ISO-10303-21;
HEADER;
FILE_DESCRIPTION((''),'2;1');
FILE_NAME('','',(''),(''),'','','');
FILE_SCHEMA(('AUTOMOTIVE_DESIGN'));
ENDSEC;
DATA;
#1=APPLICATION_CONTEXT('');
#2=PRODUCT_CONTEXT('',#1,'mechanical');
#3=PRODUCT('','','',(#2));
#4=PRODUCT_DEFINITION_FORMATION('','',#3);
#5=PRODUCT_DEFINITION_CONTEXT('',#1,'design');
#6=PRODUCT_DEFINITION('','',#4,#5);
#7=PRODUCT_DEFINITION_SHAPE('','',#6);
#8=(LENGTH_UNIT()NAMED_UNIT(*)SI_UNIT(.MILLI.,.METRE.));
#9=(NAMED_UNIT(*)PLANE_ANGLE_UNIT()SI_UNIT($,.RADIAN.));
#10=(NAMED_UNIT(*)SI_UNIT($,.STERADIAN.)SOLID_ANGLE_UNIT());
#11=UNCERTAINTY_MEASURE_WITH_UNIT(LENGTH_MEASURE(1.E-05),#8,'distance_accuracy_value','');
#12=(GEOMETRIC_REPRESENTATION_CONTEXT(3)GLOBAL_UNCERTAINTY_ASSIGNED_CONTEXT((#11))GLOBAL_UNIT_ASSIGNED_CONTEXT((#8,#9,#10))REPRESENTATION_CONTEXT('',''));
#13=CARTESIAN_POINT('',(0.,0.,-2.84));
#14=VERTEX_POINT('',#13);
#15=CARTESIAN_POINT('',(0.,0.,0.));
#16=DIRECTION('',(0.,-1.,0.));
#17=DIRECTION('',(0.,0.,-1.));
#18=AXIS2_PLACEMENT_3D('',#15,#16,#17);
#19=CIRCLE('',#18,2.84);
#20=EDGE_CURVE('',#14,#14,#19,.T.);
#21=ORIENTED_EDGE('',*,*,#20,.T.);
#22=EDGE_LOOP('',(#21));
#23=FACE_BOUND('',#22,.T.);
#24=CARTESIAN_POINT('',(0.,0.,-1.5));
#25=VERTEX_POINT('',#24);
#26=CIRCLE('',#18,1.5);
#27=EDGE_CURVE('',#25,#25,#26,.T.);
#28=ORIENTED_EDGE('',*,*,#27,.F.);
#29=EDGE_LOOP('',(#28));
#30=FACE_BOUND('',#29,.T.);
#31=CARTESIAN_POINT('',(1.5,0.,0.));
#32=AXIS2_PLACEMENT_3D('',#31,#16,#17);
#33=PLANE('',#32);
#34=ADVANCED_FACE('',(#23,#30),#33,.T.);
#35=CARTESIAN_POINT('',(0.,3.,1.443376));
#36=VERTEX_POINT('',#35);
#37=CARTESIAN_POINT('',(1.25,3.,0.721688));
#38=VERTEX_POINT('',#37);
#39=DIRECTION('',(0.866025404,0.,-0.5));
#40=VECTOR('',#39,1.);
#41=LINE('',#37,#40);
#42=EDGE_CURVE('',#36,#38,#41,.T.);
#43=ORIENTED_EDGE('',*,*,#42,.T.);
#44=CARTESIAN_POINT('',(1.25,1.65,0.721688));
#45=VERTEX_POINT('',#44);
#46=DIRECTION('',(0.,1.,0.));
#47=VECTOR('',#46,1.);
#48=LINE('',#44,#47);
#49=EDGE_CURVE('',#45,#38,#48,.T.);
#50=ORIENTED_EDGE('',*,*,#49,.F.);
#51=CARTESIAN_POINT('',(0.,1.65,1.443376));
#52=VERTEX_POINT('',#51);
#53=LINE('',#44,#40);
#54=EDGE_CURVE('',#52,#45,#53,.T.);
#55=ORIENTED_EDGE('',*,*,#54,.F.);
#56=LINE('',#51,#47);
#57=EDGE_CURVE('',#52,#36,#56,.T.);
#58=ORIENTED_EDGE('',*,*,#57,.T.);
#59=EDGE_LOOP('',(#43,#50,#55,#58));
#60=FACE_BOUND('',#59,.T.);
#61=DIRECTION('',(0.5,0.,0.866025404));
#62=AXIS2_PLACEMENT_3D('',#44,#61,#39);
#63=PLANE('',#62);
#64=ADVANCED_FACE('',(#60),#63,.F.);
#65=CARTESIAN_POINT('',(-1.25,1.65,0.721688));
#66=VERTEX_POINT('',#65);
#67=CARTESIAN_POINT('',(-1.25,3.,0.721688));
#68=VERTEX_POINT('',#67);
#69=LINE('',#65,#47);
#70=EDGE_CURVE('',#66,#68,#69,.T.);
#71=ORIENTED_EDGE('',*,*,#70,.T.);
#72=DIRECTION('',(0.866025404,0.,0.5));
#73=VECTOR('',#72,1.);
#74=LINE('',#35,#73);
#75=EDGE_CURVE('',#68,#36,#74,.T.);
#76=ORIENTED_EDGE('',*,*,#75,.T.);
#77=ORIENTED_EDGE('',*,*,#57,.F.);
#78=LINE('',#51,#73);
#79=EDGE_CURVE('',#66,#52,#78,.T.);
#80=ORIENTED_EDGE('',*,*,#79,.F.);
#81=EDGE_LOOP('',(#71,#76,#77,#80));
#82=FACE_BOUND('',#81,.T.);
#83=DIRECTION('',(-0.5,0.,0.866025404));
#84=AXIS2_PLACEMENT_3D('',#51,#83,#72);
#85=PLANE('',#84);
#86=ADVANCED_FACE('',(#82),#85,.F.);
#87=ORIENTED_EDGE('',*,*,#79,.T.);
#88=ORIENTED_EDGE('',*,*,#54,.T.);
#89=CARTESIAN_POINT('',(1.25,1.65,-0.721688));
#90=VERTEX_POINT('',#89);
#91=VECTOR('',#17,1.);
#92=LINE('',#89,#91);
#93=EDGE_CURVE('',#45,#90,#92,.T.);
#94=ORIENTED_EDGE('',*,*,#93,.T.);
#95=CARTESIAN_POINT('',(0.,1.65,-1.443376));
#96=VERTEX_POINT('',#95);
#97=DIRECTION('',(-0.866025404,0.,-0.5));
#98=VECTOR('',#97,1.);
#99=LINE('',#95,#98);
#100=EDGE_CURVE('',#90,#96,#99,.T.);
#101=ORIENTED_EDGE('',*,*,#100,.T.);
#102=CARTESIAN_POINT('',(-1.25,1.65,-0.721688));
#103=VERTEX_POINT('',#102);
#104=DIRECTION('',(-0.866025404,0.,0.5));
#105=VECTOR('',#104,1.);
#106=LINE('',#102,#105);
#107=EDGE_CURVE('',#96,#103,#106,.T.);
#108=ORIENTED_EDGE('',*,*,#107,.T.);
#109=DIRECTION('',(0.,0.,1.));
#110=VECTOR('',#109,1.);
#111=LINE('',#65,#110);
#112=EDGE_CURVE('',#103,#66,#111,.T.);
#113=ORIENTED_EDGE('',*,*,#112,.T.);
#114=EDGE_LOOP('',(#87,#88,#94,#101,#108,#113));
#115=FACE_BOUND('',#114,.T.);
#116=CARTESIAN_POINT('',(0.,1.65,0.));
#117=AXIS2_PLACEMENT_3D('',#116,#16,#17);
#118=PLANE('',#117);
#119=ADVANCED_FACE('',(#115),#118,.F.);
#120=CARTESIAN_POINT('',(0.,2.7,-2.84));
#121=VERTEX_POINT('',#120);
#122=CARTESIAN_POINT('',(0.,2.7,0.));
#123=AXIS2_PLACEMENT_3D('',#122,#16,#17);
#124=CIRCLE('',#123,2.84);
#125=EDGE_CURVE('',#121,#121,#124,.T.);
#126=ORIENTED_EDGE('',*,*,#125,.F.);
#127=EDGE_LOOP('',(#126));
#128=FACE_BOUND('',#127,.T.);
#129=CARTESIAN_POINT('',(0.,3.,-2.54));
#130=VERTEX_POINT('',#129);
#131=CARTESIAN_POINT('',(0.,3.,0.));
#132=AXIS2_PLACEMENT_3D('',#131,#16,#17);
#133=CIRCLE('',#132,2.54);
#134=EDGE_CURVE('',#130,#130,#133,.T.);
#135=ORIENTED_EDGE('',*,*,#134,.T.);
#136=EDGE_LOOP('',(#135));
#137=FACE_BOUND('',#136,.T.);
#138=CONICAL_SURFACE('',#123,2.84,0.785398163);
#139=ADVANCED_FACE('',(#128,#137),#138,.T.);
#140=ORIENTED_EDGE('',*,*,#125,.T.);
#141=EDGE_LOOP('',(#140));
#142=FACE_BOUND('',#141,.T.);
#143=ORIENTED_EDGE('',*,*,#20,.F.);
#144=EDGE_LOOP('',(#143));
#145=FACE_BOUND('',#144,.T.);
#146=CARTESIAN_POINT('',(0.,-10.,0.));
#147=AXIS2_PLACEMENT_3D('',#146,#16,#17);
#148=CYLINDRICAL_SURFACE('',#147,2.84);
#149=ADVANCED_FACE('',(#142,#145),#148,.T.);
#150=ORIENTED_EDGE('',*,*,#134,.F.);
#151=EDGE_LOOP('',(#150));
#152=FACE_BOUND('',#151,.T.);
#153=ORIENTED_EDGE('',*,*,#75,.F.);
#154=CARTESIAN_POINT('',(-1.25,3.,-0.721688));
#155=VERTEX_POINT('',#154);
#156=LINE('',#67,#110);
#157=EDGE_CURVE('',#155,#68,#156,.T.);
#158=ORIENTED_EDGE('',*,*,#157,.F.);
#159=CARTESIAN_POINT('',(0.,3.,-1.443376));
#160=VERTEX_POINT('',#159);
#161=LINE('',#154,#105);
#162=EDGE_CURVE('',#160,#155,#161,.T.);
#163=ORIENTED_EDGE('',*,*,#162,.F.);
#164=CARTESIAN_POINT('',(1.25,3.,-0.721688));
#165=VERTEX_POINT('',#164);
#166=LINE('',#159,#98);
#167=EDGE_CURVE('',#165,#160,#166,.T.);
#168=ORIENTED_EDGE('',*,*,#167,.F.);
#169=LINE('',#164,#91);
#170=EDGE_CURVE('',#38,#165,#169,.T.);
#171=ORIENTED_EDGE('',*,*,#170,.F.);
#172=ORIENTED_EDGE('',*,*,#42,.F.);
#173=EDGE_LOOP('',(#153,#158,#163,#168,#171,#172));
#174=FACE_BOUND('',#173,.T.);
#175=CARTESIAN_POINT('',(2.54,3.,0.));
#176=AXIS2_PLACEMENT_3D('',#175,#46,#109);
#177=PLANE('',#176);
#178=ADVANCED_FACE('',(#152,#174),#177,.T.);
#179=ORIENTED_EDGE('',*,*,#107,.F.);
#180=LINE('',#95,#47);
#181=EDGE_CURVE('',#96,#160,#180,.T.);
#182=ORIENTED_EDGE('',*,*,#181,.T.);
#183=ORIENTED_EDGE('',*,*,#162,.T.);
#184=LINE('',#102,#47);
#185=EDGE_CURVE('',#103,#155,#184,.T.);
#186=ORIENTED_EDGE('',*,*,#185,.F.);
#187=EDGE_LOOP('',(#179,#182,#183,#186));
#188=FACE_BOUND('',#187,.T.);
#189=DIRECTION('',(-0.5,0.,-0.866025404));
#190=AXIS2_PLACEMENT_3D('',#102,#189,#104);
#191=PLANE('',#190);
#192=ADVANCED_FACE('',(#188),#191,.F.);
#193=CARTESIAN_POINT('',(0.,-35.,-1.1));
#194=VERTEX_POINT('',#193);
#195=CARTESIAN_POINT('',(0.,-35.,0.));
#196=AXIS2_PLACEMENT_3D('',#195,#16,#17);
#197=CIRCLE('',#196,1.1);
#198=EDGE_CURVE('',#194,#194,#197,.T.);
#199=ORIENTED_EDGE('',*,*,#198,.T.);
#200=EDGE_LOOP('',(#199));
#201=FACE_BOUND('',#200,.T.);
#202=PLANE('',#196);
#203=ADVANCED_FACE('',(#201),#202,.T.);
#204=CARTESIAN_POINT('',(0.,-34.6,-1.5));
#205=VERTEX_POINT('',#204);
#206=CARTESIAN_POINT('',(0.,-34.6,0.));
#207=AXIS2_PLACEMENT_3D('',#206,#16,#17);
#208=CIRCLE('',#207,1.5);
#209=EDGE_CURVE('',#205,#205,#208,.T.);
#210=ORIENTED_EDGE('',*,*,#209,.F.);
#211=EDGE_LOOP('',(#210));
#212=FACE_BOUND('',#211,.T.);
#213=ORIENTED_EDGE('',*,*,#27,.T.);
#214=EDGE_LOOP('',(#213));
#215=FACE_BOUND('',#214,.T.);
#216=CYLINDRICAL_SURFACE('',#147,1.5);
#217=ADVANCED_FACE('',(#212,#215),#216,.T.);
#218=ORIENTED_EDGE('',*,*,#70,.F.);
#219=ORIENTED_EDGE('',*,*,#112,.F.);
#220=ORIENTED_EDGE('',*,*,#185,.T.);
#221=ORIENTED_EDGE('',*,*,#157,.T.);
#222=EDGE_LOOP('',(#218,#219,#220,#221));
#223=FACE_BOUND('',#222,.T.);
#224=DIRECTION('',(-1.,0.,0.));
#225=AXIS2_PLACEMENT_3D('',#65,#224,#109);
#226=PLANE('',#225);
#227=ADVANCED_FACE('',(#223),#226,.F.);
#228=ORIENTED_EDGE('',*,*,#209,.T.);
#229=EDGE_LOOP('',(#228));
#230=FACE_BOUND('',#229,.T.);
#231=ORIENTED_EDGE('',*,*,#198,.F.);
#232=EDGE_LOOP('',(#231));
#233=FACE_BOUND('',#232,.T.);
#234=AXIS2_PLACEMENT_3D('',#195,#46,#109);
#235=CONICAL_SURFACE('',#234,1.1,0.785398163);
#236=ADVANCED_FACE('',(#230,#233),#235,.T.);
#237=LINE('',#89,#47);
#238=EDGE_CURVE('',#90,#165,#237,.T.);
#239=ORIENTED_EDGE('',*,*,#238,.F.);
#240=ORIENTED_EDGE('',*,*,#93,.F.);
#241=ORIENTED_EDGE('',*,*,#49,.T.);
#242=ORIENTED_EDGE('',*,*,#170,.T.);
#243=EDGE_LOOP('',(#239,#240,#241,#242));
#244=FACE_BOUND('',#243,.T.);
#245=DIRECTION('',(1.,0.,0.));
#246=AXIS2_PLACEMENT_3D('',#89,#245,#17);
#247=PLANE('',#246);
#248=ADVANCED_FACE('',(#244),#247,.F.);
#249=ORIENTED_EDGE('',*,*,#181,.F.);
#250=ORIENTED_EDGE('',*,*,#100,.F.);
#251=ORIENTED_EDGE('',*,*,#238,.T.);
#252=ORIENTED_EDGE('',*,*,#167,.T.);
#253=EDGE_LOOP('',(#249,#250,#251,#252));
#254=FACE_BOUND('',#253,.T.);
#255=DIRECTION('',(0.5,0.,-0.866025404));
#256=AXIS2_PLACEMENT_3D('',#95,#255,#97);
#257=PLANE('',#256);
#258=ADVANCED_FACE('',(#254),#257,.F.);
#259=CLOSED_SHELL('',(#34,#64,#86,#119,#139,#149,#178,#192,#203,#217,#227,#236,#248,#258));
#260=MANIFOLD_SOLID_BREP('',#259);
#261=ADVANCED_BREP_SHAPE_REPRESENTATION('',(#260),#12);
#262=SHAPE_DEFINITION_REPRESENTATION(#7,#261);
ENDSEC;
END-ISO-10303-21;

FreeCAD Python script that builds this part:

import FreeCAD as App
import Part
import Sketcher

V = App.Vector
Q = App.Units.Quantity


def add_polygon(sketch, points):
    """Adds a closed chain of lines whose ends are joined by coincident constraints."""
    first, n = sketch.GeometryCount, len(points)
    for a, b in zip(points, points[1:] + points[:1]):
        sketch.addGeometry(Part.LineSegment(App.Vector(*a, 0), App.Vector(*b, 0)), False)
    for i in range(n):
        sketch.addConstraint(Sketcher.Constraint("Coincident", first + i, 2, first + (i + 1) % n, 1))

doc = App.newDocument("Part")
body = doc.addObject("PartDesign::Body", "Body")

# Sketch on XY plane
sketch1 = body.newObject("Sketcher::SketchObject", "Sketch")
sketch1.AttachmentSupport = (doc.getObject("XY_Plane"), [""])
sketch1.MapMode = "FlatFace"
add_polygon(sketch1, [(0, -35), (1.1, -35), (1.5, -34.6), (1.5, 0), (2.84, 0), (2.84, 2.7), (2.54, 3), (0, 3)])  # lines 0-7
sketch1.addConstraint([
    Sketcher.Constraint("Horizontal", 0),
    Sketcher.Constraint("Vertical", 2),
    Sketcher.Constraint("Horizontal", 3),
    Sketcher.Constraint("Vertical", 4),
    Sketcher.Constraint("Horizontal", 6),
    Sketcher.Constraint("Vertical", 7),
    Sketcher.Constraint("PointOnObject", 2, 2, -1),
    Sketcher.Constraint("PointOnObject", 6, 2, -2),
    Sketcher.Constraint("Perpendicular", 1, 5),
    Sketcher.Constraint("DistanceY", 7, 2, 7, 1, Q("38 mm")),
    Sketcher.Constraint("Angle", 1, Q("45 deg")),
    Sketcher.Constraint("DistanceX", 0, 1, 0, 2, Q("1.1 mm")),
    Sketcher.Constraint("DistanceY", 2, 1, 2, 2, Q("34.6 mm")),
    Sketcher.Constraint("DistanceY", 4, 1, 4, 2, Q("2.7 mm")),
    Sketcher.Constraint("DistanceY", 0, 2, -1, 1, Q("35 mm")),
    Sketcher.Constraint("DistanceX", 3, 1, 3, 2, Q("1.34 mm")),
])
revolution = body.newObject("PartDesign::Revolution", "Revolution")
revolution.Profile = sketch1
revolution.ReferenceAxis = (sketch1, ["V_Axis"])
revolution.Angle = 360

# Sketch on XZ plane
sketch2 = body.newObject("Sketcher::SketchObject", "Sketch001")
sketch2.AttachmentSupport = (doc.getObject("XZ_Plane"), [""])
sketch2.MapMode = "FlatFace"
sketch2.AttachmentOffset = App.Placement(V(0, 0, -3), App.Rotation())
add_polygon(sketch2, [(0, 1.443376), (1.25, 0.721688), (1.25, -0.721688), (0, -1.443376), (-1.25, -0.721688), (-1.25, 0.721688)])  # lines 0-5
sketch2.addConstraint([
    Sketcher.Constraint("Vertical", 1),
    Sketcher.Constraint("Vertical", 4),
    Sketcher.Constraint("Symmetric", 0, 2, 3, 2, -1, 1),
    Sketcher.Constraint("Symmetric", 2, 2, 5, 2, -1, 1),
    Sketcher.Constraint("PointOnObject", 2, 2, -2),
    Sketcher.Constraint("Parallel", 2, 5),
    Sketcher.Constraint("Horizontal", 1, 2, 3, 2),
    Sketcher.Constraint("Angle", 0, Q("-30 deg")),
    Sketcher.Constraint("DistanceX", 3, 2, 1, 2, Q("2.5 mm")),
    Sketcher.Constraint("DistanceY", 1, 2, 1, 1, Q("1.443376 mm")),
])
pocket1 = body.newObject("PartDesign::Pocket", "Pocket")
pocket1.Profile = sketch2
pocket1.Length = 1.35
pocket1.Reversed = True

doc.recompute()
